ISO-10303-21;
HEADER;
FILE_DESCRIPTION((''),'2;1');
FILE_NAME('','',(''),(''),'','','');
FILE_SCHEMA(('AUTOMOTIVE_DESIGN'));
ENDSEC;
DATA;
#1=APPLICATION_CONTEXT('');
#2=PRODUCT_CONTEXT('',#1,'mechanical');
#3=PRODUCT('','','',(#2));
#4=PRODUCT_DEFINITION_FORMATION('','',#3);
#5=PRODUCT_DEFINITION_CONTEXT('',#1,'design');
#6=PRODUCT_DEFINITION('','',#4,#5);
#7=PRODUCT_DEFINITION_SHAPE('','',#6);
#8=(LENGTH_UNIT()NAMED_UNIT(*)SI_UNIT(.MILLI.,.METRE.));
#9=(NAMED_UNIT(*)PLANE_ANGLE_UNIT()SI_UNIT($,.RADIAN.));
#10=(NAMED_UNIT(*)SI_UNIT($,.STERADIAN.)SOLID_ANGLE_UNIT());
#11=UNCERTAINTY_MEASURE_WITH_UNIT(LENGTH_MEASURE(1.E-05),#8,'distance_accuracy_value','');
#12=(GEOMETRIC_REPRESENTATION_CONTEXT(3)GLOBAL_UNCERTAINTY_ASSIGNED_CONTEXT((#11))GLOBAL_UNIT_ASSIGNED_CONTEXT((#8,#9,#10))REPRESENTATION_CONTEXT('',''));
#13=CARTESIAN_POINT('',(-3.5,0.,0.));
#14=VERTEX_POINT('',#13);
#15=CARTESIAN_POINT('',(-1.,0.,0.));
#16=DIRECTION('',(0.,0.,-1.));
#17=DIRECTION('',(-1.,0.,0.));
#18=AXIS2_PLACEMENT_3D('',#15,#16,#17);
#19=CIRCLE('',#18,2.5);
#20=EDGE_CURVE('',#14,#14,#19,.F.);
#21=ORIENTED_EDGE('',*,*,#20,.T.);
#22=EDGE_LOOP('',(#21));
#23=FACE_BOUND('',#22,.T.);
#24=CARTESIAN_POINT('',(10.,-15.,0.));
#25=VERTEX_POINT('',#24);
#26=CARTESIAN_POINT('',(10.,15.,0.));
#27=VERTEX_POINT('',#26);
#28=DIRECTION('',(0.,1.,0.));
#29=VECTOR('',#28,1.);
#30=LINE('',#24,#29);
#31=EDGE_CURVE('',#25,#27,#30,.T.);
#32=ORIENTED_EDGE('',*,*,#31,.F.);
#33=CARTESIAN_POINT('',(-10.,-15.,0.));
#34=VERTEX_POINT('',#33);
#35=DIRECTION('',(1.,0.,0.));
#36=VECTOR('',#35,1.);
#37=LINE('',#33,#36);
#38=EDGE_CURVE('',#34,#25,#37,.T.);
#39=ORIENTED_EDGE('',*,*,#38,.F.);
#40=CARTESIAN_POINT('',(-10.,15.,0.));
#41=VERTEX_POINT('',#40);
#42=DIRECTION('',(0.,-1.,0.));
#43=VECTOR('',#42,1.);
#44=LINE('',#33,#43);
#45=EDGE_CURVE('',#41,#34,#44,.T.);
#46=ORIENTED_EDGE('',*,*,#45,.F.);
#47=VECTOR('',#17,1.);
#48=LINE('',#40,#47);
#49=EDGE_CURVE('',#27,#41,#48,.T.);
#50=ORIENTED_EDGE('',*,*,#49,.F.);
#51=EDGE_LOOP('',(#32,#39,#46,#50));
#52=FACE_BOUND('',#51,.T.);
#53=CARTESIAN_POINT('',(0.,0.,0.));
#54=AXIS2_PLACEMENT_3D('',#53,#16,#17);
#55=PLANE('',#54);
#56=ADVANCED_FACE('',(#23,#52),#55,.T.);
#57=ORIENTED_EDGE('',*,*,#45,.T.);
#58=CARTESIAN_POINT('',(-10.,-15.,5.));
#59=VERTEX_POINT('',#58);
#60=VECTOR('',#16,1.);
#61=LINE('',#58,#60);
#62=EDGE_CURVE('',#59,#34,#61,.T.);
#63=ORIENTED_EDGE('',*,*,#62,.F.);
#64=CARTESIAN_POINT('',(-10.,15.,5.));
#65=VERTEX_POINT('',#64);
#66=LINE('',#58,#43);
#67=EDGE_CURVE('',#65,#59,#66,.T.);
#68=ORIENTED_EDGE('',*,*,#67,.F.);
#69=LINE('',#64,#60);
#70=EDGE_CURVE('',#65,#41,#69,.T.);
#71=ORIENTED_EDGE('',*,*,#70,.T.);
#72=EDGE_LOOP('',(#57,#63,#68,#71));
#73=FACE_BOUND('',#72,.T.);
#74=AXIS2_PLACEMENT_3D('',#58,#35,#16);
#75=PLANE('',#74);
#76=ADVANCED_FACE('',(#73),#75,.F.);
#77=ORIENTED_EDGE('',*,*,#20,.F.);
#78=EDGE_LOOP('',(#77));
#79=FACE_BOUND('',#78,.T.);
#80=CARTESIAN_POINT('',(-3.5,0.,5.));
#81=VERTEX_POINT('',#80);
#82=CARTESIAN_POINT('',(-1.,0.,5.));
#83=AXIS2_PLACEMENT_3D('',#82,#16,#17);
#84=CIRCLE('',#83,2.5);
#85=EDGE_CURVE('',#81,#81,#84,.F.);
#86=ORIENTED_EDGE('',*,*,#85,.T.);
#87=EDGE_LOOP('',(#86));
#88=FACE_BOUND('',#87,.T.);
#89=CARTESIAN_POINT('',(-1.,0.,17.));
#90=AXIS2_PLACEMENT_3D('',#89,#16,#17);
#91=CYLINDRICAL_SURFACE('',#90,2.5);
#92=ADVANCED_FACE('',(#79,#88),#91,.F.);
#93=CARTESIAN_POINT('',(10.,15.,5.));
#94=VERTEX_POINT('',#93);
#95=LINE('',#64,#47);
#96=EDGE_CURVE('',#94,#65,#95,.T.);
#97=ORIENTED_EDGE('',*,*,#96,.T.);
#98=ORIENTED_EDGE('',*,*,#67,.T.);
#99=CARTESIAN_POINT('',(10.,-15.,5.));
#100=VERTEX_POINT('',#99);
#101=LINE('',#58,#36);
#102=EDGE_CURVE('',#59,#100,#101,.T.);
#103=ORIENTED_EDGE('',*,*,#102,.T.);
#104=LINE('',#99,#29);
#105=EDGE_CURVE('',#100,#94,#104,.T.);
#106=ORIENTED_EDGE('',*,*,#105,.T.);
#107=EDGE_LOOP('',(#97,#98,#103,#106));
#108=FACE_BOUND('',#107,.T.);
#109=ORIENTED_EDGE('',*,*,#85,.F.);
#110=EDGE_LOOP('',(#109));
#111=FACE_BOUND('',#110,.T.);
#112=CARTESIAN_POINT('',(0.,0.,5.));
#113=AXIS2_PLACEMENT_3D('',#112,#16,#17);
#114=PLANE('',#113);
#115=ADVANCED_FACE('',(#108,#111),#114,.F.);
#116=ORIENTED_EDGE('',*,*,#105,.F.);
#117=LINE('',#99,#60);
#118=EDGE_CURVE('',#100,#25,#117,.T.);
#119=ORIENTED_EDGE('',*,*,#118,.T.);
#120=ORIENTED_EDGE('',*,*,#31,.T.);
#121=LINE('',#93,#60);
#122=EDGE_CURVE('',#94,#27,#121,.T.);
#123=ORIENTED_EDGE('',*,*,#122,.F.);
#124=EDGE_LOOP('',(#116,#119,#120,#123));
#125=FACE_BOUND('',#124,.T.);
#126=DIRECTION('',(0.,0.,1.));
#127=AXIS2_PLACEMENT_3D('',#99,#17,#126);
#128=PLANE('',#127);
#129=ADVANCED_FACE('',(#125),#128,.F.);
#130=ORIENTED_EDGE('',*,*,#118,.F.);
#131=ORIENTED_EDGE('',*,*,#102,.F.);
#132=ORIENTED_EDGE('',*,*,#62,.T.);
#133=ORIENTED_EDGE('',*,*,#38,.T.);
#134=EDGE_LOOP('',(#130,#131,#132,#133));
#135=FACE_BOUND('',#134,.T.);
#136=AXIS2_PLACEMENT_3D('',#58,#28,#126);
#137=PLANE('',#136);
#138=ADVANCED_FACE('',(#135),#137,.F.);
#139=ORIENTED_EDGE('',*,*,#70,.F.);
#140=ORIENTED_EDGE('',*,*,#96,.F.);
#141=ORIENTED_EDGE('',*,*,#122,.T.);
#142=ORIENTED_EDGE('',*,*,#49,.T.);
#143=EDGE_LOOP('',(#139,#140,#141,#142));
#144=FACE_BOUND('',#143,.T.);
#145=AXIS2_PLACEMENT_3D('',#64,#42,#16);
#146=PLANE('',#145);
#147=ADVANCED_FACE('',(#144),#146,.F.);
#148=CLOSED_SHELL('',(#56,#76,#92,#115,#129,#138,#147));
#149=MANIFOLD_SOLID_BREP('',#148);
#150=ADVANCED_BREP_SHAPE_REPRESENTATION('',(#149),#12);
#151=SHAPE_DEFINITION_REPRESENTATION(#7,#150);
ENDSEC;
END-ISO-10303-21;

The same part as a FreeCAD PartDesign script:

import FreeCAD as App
import Part
import Sketcher
from FreeCAD import Vector
Q = App.Units.Quantity


def add_polygon(sketch, points):
    """Adds a closed chain of lines whose ends are joined by coincident constraints."""
    first, n = sketch.GeometryCount, len(points)
    for a, b in zip(points, points[1:] + points[:1]):
        sketch.addGeometry(Part.LineSegment(App.Vector(*a, 0), App.Vector(*b, 0)), False)
    for i in range(n):
        sketch.addConstraint(Sketcher.Constraint("Coincident", first + i, 2, first + (i + 1) % n, 1))

doc = App.newDocument("Part")
params = doc.addObject("Spreadsheet::Sheet", "Params")
for row, (alias, value) in enumerate([
    ("sketch1_width", "20 mm"),
    ("sketch1_height", "30 mm"),
    ("pad1_length", "5 mm"),
    ("sketch2_diameter", "5 mm"),
], start=1):
    params.set(f"A{row}", alias)
    params.set(f"B{row}", "=" + value)
    params.setAlias(f"B{row}", alias)

body = doc.addObject("PartDesign::Body", "Body")

# Sketch on XY plane
sketch1 = body.newObject("Sketcher::SketchObject", "Sketch")
sketch1.AttachmentSupport = (doc.getObject("XY_Plane"), [""])
sketch1.MapMode = "FlatFace"
add_polygon(sketch1, [(-10, 15), (-10, -15), (10, -15), (10, 15)])  # lines 0-3
sketch1.addConstraint(Sketcher.Constraint("Vertical", 0))
sketch1.addConstraint(Sketcher.Constraint("Horizontal", 1))
sketch1.addConstraint(Sketcher.Constraint("Vertical", 2))
sketch1.addConstraint(Sketcher.Constraint("Horizontal", 3))
sketch1.addConstraint(Sketcher.Constraint("Symmetric", 0, 2, 2, 2, -1, 1))
sketch1.addConstraint(Sketcher.Constraint("DistanceX", 1, 1, 1, 2, Q("20 mm")))
sketch1.addConstraint(Sketcher.Constraint("DistanceY", 0, 2, 0, 1, Q("30 mm")))
sketch1.setExpression("Constraints[9]", "Params.sketch1_width")
sketch1.setExpression("Constraints[10]", "Params.sketch1_height")
pad1 = body.newObject("PartDesign::Pad", "Pad")
pad1.Profile = sketch1
pad1.setExpression("Length", "Params.pad1_length")

# Sketch on XY plane
sketch2 = body.newObject("Sketcher::SketchObject", "Sketch001")
sketch2.AttachmentSupport = (doc.getObject("XY_Plane"), [""])
sketch2.MapMode = "FlatFace"
sketch2.AttachmentOffset = App.Placement(Vector(0, 0, 5), App.Rotation())
sketch2.addGeometry(Part.Circle(Vector(-1, 0, 0), Vector(0, 0, 1), 2.5), False)
sketch2.addConstraint(Sketcher.Constraint("PointOnObject", 0, 3, -1))
sketch2.addConstraint(Sketcher.Constraint("Diameter", 0, Q("5 mm")))
sketch2.addConstraint(Sketcher.Constraint("DistanceX", 0, 3, -1, 1, Q("1 mm")))
sketch2.setExpression("Constraints[1]", "Params.sketch2_diameter")
pocket1 = body.newObject("PartDesign::Pocket", "Pocket")
pocket1.Profile = sketch2
pocket1.Type = "ThroughAll"
pocket1.Midplane = True

doc.recompute()
